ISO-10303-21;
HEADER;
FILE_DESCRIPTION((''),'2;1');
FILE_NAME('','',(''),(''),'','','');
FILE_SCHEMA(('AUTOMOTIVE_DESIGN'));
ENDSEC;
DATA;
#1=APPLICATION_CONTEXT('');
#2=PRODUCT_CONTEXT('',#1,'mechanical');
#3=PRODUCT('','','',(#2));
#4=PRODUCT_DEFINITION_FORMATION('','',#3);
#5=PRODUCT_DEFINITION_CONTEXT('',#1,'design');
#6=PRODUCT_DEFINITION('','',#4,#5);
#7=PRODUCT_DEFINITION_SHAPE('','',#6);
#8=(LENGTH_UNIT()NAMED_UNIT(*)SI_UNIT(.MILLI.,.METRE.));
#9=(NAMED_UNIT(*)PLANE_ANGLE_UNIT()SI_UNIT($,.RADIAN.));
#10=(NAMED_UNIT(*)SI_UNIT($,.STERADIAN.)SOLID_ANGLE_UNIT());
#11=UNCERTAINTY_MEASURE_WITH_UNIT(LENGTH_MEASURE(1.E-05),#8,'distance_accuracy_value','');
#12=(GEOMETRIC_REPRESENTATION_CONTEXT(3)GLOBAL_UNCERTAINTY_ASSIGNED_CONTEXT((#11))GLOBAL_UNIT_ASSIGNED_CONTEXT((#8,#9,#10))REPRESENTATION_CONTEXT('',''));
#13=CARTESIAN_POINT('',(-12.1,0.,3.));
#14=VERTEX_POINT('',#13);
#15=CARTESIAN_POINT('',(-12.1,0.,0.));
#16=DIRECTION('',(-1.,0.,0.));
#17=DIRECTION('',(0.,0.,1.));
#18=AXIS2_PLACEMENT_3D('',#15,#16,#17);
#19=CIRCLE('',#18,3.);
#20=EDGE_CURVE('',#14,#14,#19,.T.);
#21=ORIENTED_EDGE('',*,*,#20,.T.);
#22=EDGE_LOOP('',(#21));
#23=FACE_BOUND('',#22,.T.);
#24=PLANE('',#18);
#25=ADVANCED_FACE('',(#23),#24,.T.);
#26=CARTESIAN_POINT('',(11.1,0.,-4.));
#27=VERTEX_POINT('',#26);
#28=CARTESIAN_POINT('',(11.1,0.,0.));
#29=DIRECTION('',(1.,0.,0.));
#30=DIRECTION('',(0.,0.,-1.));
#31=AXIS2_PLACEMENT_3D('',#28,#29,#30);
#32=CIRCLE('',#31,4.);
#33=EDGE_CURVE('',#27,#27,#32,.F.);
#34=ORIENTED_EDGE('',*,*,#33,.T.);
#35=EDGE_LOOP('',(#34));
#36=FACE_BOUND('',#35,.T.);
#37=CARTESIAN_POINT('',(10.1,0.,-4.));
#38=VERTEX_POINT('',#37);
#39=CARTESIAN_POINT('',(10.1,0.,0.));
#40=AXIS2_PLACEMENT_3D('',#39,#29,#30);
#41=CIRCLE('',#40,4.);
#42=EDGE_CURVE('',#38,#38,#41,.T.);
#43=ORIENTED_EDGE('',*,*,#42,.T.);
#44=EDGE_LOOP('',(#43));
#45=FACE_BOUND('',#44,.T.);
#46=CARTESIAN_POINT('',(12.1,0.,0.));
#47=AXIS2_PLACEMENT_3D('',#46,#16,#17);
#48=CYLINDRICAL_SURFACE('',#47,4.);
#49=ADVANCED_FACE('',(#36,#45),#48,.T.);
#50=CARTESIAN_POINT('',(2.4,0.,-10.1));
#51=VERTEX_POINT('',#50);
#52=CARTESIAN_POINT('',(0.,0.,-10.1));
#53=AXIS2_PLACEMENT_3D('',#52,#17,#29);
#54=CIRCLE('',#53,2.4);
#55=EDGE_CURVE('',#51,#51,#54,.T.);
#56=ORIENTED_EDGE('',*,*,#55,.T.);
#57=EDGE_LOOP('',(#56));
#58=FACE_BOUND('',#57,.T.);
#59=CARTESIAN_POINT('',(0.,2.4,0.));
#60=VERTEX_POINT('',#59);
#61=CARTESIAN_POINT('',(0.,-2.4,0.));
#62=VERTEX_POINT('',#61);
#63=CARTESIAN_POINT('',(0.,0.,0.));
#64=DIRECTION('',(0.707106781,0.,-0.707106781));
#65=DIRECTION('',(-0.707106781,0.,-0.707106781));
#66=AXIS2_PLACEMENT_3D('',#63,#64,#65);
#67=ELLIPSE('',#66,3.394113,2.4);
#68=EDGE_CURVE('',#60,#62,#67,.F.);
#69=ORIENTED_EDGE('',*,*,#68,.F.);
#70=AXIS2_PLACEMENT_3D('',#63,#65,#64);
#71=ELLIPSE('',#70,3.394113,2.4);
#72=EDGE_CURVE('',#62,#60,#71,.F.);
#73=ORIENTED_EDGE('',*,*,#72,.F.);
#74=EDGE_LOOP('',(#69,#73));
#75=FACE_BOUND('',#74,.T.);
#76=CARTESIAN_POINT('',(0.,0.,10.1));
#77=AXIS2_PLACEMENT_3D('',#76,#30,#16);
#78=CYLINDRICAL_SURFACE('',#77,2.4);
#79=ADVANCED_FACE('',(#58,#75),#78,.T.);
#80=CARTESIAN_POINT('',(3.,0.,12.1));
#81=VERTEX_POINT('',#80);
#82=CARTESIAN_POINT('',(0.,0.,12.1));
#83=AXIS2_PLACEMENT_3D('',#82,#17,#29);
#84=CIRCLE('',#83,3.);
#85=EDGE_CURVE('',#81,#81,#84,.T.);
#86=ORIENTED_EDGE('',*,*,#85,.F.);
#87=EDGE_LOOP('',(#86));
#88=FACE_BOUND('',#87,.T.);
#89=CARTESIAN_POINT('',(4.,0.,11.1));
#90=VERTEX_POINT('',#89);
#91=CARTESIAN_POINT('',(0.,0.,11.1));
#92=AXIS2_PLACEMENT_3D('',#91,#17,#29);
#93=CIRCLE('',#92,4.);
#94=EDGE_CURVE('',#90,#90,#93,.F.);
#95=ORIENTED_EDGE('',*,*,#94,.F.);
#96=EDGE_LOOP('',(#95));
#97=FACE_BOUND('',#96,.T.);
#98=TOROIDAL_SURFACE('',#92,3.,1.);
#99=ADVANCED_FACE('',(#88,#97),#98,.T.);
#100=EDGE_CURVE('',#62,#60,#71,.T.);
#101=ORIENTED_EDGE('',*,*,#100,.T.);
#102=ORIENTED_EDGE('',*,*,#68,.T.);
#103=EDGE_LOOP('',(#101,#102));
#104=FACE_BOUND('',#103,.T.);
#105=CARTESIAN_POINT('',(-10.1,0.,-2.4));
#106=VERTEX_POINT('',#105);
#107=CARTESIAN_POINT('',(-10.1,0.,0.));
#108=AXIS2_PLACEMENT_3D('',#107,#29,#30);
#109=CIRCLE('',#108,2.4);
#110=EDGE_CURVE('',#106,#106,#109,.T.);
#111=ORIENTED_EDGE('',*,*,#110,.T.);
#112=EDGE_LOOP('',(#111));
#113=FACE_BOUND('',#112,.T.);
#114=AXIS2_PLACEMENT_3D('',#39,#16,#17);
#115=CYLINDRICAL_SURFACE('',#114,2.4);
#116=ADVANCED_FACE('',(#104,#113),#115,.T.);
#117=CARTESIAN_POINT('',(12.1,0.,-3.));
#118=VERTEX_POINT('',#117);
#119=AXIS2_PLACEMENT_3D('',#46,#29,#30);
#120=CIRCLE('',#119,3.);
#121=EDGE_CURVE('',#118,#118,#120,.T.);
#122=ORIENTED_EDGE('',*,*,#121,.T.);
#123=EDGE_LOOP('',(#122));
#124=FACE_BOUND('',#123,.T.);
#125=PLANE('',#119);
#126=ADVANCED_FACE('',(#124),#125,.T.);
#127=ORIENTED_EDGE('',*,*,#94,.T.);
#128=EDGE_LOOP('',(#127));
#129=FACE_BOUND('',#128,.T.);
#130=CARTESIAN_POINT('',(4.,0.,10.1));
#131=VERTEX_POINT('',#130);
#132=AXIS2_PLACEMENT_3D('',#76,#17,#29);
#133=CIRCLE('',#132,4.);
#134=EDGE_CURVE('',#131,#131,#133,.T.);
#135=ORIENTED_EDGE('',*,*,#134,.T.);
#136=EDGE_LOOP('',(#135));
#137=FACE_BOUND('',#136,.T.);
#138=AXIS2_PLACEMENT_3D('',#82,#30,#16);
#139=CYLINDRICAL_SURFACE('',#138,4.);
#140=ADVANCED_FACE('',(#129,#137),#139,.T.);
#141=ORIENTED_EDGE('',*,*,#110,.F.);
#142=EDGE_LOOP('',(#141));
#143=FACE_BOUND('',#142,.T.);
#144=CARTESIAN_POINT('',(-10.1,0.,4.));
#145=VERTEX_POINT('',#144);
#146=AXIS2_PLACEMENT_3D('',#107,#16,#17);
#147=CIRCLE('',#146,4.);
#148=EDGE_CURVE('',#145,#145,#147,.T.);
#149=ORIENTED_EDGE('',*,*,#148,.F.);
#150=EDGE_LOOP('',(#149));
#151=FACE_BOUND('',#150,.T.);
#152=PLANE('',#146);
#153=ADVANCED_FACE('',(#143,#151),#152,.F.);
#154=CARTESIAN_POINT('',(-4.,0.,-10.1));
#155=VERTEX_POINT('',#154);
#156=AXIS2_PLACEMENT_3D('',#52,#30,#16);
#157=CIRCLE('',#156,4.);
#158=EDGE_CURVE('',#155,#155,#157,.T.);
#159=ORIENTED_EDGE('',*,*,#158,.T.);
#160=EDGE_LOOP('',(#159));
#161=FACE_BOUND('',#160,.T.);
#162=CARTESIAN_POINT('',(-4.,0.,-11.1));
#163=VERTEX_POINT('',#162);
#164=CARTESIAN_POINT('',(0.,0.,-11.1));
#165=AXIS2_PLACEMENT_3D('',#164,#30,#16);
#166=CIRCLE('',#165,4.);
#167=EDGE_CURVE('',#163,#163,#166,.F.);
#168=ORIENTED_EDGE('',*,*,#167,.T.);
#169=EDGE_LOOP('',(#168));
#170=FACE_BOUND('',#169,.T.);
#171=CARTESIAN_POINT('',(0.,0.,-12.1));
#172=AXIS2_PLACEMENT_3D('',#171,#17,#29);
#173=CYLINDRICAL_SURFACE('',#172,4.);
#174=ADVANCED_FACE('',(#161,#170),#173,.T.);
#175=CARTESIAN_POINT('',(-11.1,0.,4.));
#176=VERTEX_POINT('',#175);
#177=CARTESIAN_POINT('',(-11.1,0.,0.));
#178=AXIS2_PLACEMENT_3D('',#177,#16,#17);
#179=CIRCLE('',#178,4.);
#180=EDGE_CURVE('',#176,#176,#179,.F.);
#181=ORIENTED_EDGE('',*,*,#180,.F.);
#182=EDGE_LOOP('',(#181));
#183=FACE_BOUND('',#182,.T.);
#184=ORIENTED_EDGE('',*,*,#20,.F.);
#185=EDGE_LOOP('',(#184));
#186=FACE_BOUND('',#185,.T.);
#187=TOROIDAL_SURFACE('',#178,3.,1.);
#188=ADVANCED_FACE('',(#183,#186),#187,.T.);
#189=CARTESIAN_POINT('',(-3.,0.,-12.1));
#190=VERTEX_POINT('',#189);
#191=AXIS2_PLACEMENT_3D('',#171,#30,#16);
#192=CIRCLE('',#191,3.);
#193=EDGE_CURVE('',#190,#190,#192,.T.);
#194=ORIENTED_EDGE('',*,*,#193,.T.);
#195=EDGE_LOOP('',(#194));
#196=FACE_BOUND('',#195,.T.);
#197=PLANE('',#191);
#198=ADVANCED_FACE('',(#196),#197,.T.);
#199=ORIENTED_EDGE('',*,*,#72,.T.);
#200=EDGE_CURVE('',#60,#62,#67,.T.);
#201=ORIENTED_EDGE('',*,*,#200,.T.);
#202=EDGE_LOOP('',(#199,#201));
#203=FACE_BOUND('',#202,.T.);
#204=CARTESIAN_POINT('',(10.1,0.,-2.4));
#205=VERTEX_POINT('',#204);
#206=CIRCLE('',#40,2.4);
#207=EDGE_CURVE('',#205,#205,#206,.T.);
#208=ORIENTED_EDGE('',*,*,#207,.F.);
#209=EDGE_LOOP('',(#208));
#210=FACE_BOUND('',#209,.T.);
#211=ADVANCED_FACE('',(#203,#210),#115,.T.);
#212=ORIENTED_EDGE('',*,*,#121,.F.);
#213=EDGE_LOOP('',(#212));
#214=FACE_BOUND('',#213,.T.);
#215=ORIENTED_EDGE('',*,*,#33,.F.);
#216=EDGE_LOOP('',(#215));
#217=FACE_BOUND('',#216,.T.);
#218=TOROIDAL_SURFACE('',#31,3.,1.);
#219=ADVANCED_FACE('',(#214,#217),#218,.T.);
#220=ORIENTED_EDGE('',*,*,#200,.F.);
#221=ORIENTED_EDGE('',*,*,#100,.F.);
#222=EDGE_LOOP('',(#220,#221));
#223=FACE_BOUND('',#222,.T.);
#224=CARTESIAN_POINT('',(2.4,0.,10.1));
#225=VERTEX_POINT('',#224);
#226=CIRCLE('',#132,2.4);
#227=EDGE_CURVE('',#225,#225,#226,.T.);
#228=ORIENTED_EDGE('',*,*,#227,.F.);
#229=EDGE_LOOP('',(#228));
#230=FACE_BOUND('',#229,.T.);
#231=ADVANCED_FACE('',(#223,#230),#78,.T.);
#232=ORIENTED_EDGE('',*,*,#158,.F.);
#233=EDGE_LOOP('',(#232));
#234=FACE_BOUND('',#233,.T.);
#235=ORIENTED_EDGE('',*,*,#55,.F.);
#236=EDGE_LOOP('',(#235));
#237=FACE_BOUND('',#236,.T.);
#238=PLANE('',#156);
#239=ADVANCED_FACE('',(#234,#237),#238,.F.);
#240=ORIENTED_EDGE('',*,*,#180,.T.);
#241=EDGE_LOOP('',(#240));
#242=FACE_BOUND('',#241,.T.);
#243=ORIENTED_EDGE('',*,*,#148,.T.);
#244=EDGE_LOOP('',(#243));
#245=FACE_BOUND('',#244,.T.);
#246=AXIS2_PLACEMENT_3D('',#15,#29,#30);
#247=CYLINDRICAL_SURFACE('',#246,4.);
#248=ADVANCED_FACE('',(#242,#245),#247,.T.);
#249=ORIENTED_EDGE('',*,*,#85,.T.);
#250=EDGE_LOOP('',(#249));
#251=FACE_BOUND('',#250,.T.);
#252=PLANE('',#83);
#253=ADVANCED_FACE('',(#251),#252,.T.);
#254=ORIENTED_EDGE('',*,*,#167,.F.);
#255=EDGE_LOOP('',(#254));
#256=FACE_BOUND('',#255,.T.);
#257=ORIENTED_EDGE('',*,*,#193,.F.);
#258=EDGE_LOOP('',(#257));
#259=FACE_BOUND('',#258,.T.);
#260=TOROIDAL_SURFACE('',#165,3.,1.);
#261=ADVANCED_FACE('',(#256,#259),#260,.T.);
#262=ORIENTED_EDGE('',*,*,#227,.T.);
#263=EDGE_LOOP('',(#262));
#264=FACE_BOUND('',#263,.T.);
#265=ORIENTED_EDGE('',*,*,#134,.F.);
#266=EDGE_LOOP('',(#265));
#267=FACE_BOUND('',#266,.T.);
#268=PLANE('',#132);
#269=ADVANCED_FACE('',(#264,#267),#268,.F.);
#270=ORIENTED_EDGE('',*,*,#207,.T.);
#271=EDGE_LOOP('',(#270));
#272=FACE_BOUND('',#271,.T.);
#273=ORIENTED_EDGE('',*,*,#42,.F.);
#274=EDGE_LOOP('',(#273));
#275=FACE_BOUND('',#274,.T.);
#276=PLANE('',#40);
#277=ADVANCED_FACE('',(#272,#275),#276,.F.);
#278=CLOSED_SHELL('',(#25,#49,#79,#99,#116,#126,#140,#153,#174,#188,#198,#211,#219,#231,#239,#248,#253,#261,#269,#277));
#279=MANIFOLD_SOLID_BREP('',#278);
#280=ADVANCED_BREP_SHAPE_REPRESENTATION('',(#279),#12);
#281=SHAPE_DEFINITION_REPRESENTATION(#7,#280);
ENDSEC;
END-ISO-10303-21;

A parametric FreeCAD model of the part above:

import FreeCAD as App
import Part
import Sketcher
from FreeCAD import Vector
Q = App.Units.Quantity


def edges_at(feature, points):
    """Names of the edges that pass closest to the given points."""
    edges = feature.Shape.Edges
    near = lambda p: min(range(len(edges)), key=lambda i: edges[i].distToShape(Part.Vertex(*p))[0])
    return sorted({f"Edge{near(p) + 1}" for p in points})

doc = App.newDocument("Part")
body = doc.addObject("PartDesign::Body", "Body")

# Sketch on XY plane
sketch1 = doc.addObject("Sketcher::SketchObject", "Sketch")
body.addObject(sketch1)
sketch1.AttachmentSupport = (doc.XY_Plane, [""])
sketch1.MapMode = "FlatFace"
sketch1.addGeometry(Part.Circle(Vector(0, 0, 0), Vector(0, 0, 1), 2.4), False)
sketch1.addConstraint([
    Sketcher.Constraint("Coincident", 0, 3, -1, 1),
    Sketcher.Constraint("Diameter", 0, Q("4.8 mm")),
])
pad1 = doc.addObject("PartDesign::Pad", "Pad")
body.addObject(pad1)
pad1.Profile = sketch1
pad1.Length = 20.2
pad1.Midplane = True

# Sketch on YZ plane
sketch2 = doc.addObject("Sketcher::SketchObject", "Sketch001")
body.addObject(sketch2)
sketch2.AttachmentSupport = (doc.YZ_Plane, [""])
sketch2.MapMode = "FlatFace"
sketch2.addGeometry(Part.Circle(Vector(0, 0, 0), Vector(0, 0, 1), 2.4), False)
sketch2.addConstraint([
    Sketcher.Constraint("Coincident", 0, 3, -1, 1),
    Sketcher.Constraint("Diameter", 0, Q("4.8 mm")),
])
pad2 = doc.addObject("PartDesign::Pad", "Pad001")
body.addObject(pad2)
pad2.Profile = sketch2
pad2.Length = 20.2
pad2.Midplane = True

# Sketch on YZ plane
sketch3 = doc.addObject("Sketcher::SketchObject", "Sketch002")
body.addObject(sketch3)
sketch3.AttachmentSupport = (doc.YZ_Plane, [""])
sketch3.MapMode = "FlatFace"
sketch3.AttachmentOffset = App.Placement(Vector(0, 0, 10.1), App.Rotation())
sketch3.addGeometry(Part.Circle(Vector(0, 0, 0), Vector(0, 0, 1), 4), False)
sketch3.addConstraint([
    Sketcher.Constraint("Coincident", 0, 3, -1, 1),
    Sketcher.Constraint("Diameter", 0, Q("8 mm")),
])
pad3 = doc.addObject("PartDesign::Pad", "Pad002")
body.addObject(pad3)
pad3.Profile = sketch3
pad3.Length = 2

# Sketch on YZ plane
sketch4 = doc.addObject("Sketcher::SketchObject", "Sketch003")
body.addObject(sketch4)
sketch4.AttachmentSupport = (doc.YZ_Plane, [""])
sketch4.MapMode = "FlatFace"
sketch4.AttachmentOffset = App.Placement(Vector(0, 0, -10.1), App.Rotation())
sketch4.addGeometry(Part.Circle(Vector(0, 0, 0), Vector(0, 0, 1), 4), False)
sketch4.addConstraint([
    Sketcher.Constraint("Coincident", 0, 3, -1, 1),
    Sketcher.Constraint("Diameter", 0, Q("8 mm")),
])
pad4 = doc.addObject("PartDesign::Pad", "Pad003")
body.addObject(pad4)
pad4.Profile = sketch4
pad4.Length = 2
pad4.Reversed = True

# Sketch on XY plane
sketch5 = doc.addObject("Sketcher::SketchObject", "Sketch004")
body.addObject(sketch5)
sketch5.AttachmentSupport = (doc.XY_Plane, [""])
sketch5.MapMode = "FlatFace"
sketch5.AttachmentOffset = App.Placement(Vector(0, 0, 10.1), App.Rotation())
sketch5.addGeometry(Part.Circle(Vector(0, 0, 0), Vector(0, 0, 1), 4), False)
sketch5.addConstraint([
    Sketcher.Constraint("Coincident", 0, 3, -1, 1),
    Sketcher.Constraint("Diameter", 0, Q("8 mm")),
])
pad5 = doc.addObject("PartDesign::Pad", "Pad004")
body.addObject(pad5)
pad5.Profile = sketch5
pad5.Length = 2

# Sketch on XY plane
sketch6 = doc.addObject("Sketcher::SketchObject", "Sketch005")
body.addObject(sketch6)
sketch6.AttachmentSupport = (doc.XY_Plane, [""])
sketch6.MapMode = "FlatFace"
sketch6.AttachmentOffset = App.Placement(Vector(0, 0, -10.1), App.Rotation())
sketch6.addGeometry(Part.Circle(Vector(0, 0, 0), Vector(0, 0, 1), 4), False)
sketch6.addConstraint([
    Sketcher.Constraint("Coincident", 0, 3, -1, 1),
    Sketcher.Constraint("Diameter", 0, Q("8 mm")),
])
pad6 = doc.addObject("PartDesign::Pad", "Pad005")
body.addObject(pad6)
pad6.Profile = sketch6
pad6.Length = 2
pad6.Reversed = True
doc.recompute()

fillet = doc.addObject("PartDesign::Fillet", "Fillet")
body.addObject(fillet)
fillet.Base = (pad6, edges_at(pad6, [
    (12.1, 0, 4),
    (-12.1, 0, 4),
    (-4, 0, 12.1),
    (-4, 0, -12.1),
]))
fillet.Radius = 1

doc.recompute()
